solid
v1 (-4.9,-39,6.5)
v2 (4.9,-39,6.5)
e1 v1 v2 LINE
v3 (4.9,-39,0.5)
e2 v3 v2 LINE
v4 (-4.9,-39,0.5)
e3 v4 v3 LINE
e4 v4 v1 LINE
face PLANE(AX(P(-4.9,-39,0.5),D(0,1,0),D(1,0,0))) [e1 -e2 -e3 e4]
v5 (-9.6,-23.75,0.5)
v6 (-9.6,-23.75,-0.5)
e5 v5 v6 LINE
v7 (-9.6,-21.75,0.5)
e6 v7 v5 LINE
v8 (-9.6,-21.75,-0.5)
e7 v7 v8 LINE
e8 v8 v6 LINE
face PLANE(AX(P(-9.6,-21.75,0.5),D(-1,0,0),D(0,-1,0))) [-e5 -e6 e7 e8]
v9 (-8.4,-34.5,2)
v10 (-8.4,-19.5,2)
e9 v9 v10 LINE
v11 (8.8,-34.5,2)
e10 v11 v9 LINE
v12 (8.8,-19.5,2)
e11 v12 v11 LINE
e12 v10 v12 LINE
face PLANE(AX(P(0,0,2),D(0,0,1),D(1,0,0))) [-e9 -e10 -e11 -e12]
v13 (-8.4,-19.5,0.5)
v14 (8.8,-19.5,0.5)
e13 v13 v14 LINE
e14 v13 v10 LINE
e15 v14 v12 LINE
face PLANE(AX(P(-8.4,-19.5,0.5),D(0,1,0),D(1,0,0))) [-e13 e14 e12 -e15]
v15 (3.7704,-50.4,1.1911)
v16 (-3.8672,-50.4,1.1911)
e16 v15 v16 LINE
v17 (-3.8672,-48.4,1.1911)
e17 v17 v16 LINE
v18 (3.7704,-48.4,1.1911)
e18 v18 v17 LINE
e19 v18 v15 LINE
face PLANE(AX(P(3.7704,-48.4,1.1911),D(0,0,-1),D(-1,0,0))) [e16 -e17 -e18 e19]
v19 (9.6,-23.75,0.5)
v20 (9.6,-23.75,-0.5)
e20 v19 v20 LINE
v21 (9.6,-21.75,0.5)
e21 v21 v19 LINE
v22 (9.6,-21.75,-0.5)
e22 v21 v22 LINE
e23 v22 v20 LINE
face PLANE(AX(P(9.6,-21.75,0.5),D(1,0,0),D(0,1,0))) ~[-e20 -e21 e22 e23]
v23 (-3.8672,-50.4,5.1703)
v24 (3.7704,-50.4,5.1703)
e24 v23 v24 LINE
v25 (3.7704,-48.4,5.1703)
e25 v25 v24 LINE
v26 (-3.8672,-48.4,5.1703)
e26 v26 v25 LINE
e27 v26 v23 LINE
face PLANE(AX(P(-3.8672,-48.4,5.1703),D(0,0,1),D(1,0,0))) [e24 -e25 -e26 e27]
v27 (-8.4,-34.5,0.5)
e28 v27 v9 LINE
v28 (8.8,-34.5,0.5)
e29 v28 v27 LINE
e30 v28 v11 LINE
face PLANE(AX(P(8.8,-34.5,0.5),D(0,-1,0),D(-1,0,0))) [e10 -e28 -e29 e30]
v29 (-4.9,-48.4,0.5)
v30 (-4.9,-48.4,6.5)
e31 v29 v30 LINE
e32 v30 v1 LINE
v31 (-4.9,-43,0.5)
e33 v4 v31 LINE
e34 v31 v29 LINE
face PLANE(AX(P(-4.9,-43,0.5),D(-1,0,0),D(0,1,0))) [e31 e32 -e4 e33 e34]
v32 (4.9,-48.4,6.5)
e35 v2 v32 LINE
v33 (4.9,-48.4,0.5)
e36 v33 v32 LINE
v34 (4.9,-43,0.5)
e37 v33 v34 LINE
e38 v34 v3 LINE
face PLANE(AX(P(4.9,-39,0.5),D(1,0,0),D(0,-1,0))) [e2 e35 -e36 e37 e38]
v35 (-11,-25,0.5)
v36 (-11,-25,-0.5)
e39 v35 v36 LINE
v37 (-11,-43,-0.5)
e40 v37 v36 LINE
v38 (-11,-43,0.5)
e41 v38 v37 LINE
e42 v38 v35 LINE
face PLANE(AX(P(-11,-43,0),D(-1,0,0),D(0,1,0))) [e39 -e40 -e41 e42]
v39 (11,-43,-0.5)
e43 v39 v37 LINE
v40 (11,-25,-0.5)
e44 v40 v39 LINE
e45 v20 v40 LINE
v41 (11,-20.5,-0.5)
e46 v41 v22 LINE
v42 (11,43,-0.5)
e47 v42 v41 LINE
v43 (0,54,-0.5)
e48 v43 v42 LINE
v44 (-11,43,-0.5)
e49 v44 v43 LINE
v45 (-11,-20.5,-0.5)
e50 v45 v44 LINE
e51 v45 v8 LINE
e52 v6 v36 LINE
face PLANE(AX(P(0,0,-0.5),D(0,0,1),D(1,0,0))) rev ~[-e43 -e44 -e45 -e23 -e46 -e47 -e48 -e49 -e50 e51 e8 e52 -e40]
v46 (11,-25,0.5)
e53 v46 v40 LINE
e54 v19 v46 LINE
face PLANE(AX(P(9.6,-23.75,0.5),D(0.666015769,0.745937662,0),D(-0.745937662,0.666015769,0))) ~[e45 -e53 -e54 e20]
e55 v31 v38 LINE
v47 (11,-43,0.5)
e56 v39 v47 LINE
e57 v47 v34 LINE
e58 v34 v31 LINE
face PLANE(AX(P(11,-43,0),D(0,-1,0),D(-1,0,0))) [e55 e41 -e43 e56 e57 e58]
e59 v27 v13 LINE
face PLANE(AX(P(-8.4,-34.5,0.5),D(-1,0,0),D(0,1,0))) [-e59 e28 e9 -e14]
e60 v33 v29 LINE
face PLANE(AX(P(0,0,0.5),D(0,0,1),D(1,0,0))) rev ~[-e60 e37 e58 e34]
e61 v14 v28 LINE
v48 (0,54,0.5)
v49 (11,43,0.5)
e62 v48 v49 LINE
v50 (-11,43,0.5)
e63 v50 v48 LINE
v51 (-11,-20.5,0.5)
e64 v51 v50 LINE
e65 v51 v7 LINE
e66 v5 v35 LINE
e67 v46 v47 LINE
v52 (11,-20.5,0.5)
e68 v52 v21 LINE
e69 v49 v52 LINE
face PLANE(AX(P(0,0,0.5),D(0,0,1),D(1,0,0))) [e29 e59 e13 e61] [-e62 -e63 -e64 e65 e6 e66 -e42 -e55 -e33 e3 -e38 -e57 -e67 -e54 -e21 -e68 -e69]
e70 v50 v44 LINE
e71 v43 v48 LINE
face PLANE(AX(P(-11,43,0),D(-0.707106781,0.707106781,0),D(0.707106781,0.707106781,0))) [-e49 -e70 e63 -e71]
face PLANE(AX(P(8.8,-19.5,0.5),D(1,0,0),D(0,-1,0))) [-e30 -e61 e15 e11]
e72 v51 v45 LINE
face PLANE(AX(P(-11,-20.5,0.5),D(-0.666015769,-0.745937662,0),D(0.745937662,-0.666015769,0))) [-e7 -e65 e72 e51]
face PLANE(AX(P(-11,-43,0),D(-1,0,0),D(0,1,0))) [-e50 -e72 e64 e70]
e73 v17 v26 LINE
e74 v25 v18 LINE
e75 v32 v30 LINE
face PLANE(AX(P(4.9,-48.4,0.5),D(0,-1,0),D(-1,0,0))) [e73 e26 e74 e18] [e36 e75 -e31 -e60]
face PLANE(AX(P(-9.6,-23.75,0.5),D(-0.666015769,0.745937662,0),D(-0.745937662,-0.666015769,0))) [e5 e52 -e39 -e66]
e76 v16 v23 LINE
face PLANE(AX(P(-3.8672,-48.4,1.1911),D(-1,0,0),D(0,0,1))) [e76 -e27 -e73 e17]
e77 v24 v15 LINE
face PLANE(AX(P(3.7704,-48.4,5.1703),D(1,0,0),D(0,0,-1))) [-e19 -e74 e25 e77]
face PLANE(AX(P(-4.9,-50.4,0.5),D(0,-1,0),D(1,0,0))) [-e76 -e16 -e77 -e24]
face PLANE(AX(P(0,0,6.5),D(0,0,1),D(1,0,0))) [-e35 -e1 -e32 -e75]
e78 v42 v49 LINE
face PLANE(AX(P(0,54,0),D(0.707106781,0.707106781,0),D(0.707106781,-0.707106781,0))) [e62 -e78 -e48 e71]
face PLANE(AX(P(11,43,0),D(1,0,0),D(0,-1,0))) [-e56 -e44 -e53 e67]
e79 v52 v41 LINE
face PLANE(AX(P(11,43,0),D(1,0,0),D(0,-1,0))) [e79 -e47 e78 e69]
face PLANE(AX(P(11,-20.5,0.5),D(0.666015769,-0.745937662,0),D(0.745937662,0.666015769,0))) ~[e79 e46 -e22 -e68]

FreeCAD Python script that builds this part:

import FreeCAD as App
import Part
import Sketcher

doc = App.newDocument("Part")
body = doc.addObject("PartDesign::Body", "Body")

# Sketch on XY plane
sketch1 = doc.addObject("Sketcher::SketchObject", "Sketch")
body.addObject(sketch1)
sketch1.AttachmentSupport = (doc.XY_Plane, [""])
sketch1.MapMode = "FlatFace"
sketch1.addGeometry([
    Part.LineSegment(App.Vector(-11, -43, 0), App.Vector(11, -43, 0)),  # 0
    Part.LineSegment(App.Vector(11, -43, 0), App.Vector(11, 43, 0)),  # 1
    Part.LineSegment(App.Vector(11, 43, 0), App.Vector(0, 54, 0)),  # 2
    Part.LineSegment(App.Vector(0, 54, 0), App.Vector(-11, 43, 0)),  # 3
    Part.LineSegment(App.Vector(-11, 43, 0), App.Vector(-11, -43, 0)),  # 4
], False)
sketch1.addConstraint([
    Sketcher.Constraint("Coincident", 0, 2, 1, 1),
    Sketcher.Constraint("Coincident", 1, 2, 2, 1),
    Sketcher.Constraint("Coincident", 2, 2, 3, 1),
    Sketcher.Constraint("Coincident", 3, 2, 4, 1),
    Sketcher.Constraint("Coincident", 4, 2, 0, 1),
    Sketcher.Constraint("Horizontal", 0),
    Sketcher.Constraint("Vertical", 1),
    Sketcher.Constraint("Vertical", 4),
    Sketcher.Constraint("Symmetric", 0, 2, 3, 2, -1, 1),
    Sketcher.Constraint("PointOnObject", 2, 2, -2),
    Sketcher.Constraint("Perpendicular", 2, 3),
    Sketcher.Constraint("Horizontal", 1, 2, 3, 2),
    Sketcher.Constraint("DistanceX", 0, 1, 0, 2, 22.0),
    Sketcher.Constraint("DistanceY", 1, 1, 1, 2, 86.0),
])
pad1 = doc.addObject("PartDesign::Pad", "Pad")
body.addObject(pad1)
pad1.Profile = sketch1
pad1.Length = 1
pad1.Midplane = True

# Sketch on XY plane
sketch2 = doc.addObject("Sketcher::SketchObject", "Sketch001")
body.addObject(sketch2)
sketch2.AttachmentSupport = (doc.XY_Plane, [""])
sketch2.MapMode = "FlatFace"
sketch2.AttachmentOffset = App.Placement(App.Vector(0, 0, 0.5), App.Rotation())
sketch2.addGeometry([
    Part.LineSegment(App.Vector(-9.6, -21.75, 0), App.Vector(-11, -20.5, 0)),
    Part.LineSegment(App.Vector(-11, -20.5, 0), App.Vector(-11, -25, 0)),
    Part.LineSegment(App.Vector(-11, -25, 0), App.Vector(-9.6, -23.75, 0)),
    Part.LineSegment(App.Vector(-9.6, -23.75, 0), App.Vector(-9.6, -21.75, 0)),
], False)
sketch2.addConstraint([
    Sketcher.Constraint("Coincident", 0, 2, 1, 1),
    Sketcher.Constraint("Coincident", 1, 2, 2, 1),
    Sketcher.Constraint("Coincident", 2, 2, 3, 1),
    Sketcher.Constraint("Coincident", 3, 2, 0, 1),
    Sketcher.Constraint("Vertical", 1),
    Sketcher.Constraint("Vertical", 3),
    Sketcher.Constraint("Equal", 0, 2),
    Sketcher.Constraint("DistanceY", 3, 1, 3, 2, 2.0),
    Sketcher.Constraint("DistanceX", 1, 2, 2, 2, 1.4),
    Sketcher.Constraint("DistanceY", 1, 2, 1, 1, 4.5),
    Sketcher.Constraint("DistanceX", 0, 2, -1, 1, 11.0),
    Sketcher.Constraint("DistanceY", 1, 2, -1, 1, 25.0),
])
pocket1 = doc.addObject("PartDesign::Pocket", "Pocket")
body.addObject(pocket1)
pocket1.Profile = sketch2
pocket1.Length = 1
doc.recompute()

mirrored = doc.addObject("PartDesign::Mirrored", "Mirrored")
body.addObject(mirrored)
mirrored.Originals = [pocket1]
mirrored.MirrorPlane = (doc.YZ_Plane, [""])
body.Tip = mirrored

# Sketch on XY plane
sketch3 = doc.addObject("Sketcher::SketchObject", "Sketch002")
body.addObject(sketch3)
sketch3.AttachmentSupport = (doc.XY_Plane, [""])
sketch3.MapMode = "FlatFace"
sketch3.AttachmentOffset = App.Placement(App.Vector(0, 0, 0.5), App.Rotation())
sketch3.addGeometry([
    Part.LineSegment(App.Vector(4.9, -39, 0), App.Vector(-4.9, -39, 0)),
    Part.LineSegment(App.Vector(-4.9, -39, 0), App.Vector(-4.9, -48.4, 0)),
    Part.LineSegment(App.Vector(-4.9, -48.4, 0), App.Vector(4.9, -48.4, 0)),
    Part.LineSegment(App.Vector(4.9, -48.4, 0), App.Vector(4.9, -39, 0)),
], False)
sketch3.addConstraint([
    Sketcher.Constraint("Coincident", 0, 2, 1, 1),
    Sketcher.Constraint("Coincident", 1, 2, 2, 1),
    Sketcher.Constraint("Coincident", 2, 2, 3, 1),
    Sketcher.Constraint("Coincident", 3, 2, 0, 1),
    Sketcher.Constraint("Horizontal", 0),
    Sketcher.Constraint("Vertical", 1),
    Sketcher.Constraint("Horizontal", 2),
    Sketcher.Constraint("Vertical", 3),
    Sketcher.Constraint("DistanceX", 0, 2, 0, 1, 9.8),
    Sketcher.Constraint("DistanceY", 1, 2, 1, 1, 9.4),
    Sketcher.Constraint("DistanceY", 0, 2, -1, 1, 39.0),
    Sketcher.Constraint("DistanceX", 0, 2, -1, 1, 4.9),
])
pad2 = doc.addObject("PartDesign::Pad", "Pad001")
body.addObject(pad2)
pad2.Profile = sketch3
pad2.Length = 6

# Sketch on XY plane
sketch4 = doc.addObject("Sketcher::SketchObject", "Sketch003")
body.addObject(sketch4)
sketch4.AttachmentSupport = (doc.XY_Plane, [""])
sketch4.MapMode = "FlatFace"
sketch4.AttachmentOffset = App.Placement(App.Vector(0, 0, 0.5), App.Rotation())
sketch4.addGeometry([
    Part.LineSegment(App.Vector(8.8, -19.5, 0), App.Vector(-8.4, -19.5, 0)),
    Part.LineSegment(App.Vector(-8.4, -19.5, 0), App.Vector(-8.4, -34.5, 0)),
    Part.LineSegment(App.Vector(-8.4, -34.5, 0), App.Vector(8.8, -34.5, 0)),
    Part.LineSegment(App.Vector(8.8, -34.5, 0), App.Vector(8.8, -19.5, 0)),
], False)
sketch4.addConstraint([
    Sketcher.Constraint("Coincident", 0, 2, 1, 1),
    Sketcher.Constraint("Coincident", 1, 2, 2, 1),
    Sketcher.Constraint("Coincident", 2, 2, 3, 1),
    Sketcher.Constraint("Coincident", 3, 2, 0, 1),
    Sketcher.Constraint("Horizontal", 0),
    Sketcher.Constraint("Vertical", 1),
    Sketcher.Constraint("Horizontal", 2),
    Sketcher.Constraint("Vertical", 3),
    Sketcher.Constraint("DistanceY", 1, 2, 1, 1, 15.0),
    Sketcher.Constraint("DistanceX", 0, 2, 0, 1, 17.2),
    Sketcher.Constraint("DistanceX", 0, 2, -1, 1, 8.4),
    Sketcher.Constraint("DistanceY", 0, 2, -1, 1, 19.5),
])
pad3 = doc.addObject("PartDesign::Pad", "Pad002")
body.addObject(pad3)
pad3.Profile = sketch4
pad3.Length = 1.5

# Sketch on XZ plane
sketch5 = doc.addObject("Sketcher::SketchObject", "Sketch004")
body.addObject(sketch5)
sketch5.AttachmentSupport = (doc.XZ_Plane, [""])
sketch5.MapMode = "FlatFace"
sketch5.AttachmentOffset = App.Placement(App.Vector(0, 0, 48.4), App.Rotation())
sketch5.addGeometry([
    Part.LineSegment(App.Vector(3.7704, 5.1703, 0), App.Vector(-3.8672, 5.1703, 0)),
    Part.LineSegment(App.Vector(-3.8672, 5.1703, 0), App.Vector(-3.8672, 1.1911, 0)),
    Part.LineSegment(App.Vector(-3.8672, 1.1911, 0), App.Vector(3.7704, 1.1911, 0)),
    Part.LineSegment(App.Vector(3.7704, 1.1911, 0), App.Vector(3.7704, 5.1703, 0)),
], False)
sketch5.addConstraint([
    Sketcher.Constraint("Coincident", 0, 2, 1, 1),
    Sketcher.Constraint("Coincident", 1, 2, 2, 1),
    Sketcher.Constraint("Coincident", 2, 2, 3, 1),
    Sketcher.Constraint("Coincident", 3, 2, 0, 1),
    Sketcher.Constraint("Horizontal", 0),
    Sketcher.Constraint("Vertical", 1),
    Sketcher.Constraint("Horizontal", 2),
    Sketcher.Constraint("Vertical", 3),
    Sketcher.Constraint("DistanceX", 0, 2, 0, 1, 7.6376),
    Sketcher.Constraint("DistanceY", 1, 2, 1, 1, 3.9792),
    Sketcher.Constraint("DistanceY", -1, 1, 1, 2, 1.191),
    Sketcher.Constraint("DistanceX", 0, 2, -1, 1, 3.8672),
])
pad4 = doc.addObject("PartDesign::Pad", "Pad003")
body.addObject(pad4)
pad4.Profile = sketch5
pad4.Length = 2

doc.recompute()
